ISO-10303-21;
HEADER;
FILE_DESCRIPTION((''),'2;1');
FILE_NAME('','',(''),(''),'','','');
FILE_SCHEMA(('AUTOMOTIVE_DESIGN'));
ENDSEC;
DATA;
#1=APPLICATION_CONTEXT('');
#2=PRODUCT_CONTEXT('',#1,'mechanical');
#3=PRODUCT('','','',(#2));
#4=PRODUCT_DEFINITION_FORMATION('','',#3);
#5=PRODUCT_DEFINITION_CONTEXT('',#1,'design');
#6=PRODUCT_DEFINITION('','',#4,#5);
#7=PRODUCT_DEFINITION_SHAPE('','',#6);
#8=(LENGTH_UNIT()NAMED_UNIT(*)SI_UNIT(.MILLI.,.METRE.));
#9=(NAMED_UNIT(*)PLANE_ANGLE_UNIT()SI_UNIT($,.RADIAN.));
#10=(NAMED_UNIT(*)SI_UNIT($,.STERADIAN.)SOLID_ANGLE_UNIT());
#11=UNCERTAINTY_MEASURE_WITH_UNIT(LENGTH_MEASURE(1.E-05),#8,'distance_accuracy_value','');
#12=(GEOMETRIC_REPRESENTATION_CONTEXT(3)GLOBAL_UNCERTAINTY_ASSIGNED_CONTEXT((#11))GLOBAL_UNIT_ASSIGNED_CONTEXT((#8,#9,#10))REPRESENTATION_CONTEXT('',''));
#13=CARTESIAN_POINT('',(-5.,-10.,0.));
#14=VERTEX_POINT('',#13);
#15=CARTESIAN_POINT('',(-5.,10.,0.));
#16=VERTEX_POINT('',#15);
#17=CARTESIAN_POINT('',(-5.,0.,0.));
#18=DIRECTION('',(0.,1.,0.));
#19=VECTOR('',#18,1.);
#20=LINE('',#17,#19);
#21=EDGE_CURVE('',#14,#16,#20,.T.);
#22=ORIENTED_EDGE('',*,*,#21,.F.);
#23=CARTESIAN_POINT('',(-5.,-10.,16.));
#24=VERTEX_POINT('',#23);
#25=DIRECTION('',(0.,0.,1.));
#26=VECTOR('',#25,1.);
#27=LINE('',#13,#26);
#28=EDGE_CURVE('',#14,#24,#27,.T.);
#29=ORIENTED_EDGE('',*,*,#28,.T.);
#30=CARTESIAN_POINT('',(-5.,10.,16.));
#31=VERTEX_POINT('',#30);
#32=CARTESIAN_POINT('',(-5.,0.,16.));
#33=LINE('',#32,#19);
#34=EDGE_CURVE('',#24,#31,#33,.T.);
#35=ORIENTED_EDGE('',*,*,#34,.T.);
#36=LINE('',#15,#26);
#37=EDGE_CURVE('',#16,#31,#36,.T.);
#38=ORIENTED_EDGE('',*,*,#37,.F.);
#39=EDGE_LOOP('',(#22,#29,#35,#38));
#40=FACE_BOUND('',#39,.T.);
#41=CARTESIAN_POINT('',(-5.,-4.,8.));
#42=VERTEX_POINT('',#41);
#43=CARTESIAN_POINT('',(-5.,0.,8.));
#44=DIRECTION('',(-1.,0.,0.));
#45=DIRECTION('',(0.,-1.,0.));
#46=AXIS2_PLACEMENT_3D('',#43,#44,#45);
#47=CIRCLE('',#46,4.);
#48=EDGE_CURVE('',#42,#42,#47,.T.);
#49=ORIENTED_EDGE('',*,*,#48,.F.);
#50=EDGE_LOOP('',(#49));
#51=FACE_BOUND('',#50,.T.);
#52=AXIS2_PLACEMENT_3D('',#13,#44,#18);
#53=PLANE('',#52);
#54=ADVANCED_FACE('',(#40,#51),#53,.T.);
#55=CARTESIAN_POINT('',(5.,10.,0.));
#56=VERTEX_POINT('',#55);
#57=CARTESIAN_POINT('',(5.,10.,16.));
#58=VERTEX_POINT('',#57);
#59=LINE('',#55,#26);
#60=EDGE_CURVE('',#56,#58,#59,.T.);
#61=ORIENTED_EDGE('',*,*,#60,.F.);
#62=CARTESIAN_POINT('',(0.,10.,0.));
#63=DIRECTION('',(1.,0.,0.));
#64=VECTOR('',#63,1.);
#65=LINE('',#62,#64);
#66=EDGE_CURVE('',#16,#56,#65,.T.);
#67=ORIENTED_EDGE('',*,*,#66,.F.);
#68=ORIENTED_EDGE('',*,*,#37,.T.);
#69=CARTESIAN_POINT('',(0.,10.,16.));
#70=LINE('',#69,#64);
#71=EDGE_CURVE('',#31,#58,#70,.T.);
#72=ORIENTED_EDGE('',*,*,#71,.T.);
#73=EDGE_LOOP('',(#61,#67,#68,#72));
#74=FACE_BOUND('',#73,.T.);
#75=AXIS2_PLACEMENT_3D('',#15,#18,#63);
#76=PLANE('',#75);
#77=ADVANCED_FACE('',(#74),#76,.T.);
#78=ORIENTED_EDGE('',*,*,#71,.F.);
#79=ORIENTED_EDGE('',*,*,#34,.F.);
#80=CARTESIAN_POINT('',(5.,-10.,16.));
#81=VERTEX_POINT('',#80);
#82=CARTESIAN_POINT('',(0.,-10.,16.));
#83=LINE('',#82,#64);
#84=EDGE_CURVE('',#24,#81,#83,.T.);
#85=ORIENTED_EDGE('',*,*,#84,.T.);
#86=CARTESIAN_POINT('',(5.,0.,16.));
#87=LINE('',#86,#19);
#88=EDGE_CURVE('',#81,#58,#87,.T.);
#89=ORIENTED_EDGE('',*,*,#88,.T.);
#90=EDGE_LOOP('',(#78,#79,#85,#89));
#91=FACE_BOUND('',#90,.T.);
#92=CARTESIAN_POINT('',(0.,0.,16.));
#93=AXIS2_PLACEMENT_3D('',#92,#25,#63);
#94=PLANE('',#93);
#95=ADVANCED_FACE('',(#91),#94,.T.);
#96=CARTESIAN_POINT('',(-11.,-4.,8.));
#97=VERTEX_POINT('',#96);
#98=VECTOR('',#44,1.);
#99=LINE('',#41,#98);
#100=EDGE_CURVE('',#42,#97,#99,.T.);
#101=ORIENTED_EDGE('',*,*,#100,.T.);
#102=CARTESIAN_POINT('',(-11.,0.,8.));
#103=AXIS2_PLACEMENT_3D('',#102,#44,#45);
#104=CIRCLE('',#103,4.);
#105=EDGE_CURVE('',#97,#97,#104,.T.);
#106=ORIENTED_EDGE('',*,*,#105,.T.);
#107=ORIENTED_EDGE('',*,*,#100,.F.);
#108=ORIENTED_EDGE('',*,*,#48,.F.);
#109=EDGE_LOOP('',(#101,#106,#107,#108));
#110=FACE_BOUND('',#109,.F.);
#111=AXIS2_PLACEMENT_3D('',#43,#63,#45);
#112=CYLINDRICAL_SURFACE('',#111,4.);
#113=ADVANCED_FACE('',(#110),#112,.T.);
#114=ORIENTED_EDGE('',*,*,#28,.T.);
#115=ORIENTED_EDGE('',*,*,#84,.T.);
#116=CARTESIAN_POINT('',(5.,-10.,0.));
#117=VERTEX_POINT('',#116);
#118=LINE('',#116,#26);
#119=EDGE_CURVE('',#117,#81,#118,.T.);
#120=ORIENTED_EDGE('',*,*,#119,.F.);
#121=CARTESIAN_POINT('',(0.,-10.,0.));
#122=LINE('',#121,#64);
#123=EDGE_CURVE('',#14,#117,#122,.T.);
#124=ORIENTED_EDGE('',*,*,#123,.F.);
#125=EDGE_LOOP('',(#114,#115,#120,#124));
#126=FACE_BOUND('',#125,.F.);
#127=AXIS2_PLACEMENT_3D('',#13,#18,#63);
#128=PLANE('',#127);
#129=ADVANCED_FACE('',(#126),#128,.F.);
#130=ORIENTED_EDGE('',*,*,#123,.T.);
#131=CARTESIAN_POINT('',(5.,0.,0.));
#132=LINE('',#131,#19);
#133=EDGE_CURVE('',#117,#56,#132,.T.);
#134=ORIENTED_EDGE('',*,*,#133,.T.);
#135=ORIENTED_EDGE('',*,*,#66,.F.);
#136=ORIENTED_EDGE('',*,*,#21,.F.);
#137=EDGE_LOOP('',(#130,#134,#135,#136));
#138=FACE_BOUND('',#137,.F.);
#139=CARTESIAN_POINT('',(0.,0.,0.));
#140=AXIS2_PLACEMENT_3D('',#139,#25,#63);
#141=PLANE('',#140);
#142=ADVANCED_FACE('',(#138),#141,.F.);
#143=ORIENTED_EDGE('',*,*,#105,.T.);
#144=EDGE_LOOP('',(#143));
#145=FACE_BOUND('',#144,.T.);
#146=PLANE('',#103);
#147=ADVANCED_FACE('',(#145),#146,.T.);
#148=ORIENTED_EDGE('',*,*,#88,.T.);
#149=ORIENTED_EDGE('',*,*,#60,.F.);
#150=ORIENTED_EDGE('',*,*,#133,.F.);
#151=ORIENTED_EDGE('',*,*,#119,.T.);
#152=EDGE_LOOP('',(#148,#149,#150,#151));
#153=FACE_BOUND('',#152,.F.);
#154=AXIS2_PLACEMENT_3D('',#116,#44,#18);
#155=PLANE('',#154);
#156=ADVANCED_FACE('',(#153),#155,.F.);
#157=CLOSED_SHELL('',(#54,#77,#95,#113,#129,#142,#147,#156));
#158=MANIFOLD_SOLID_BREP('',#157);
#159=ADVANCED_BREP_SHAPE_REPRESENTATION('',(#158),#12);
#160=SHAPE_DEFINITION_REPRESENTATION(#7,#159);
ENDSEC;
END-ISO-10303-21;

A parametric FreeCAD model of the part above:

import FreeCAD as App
import Part
import Sketcher
from FreeCAD import Vector

doc = App.newDocument("Part")
params = doc.addObject("Spreadsheet::Sheet", "Params")
for row, (alias, value) in enumerate([
    ("sketch1_width", "10 mm"),
    ("sketch1_height", "20 mm"),
    ("pad1_length", "16 mm"),
    ("sketch2_diameter", "8 mm"),
    ("pad2_length", "6 mm"),
], start=1):
    params.set(f"A{row}", alias)
    params.set(f"B{row}", "=" + value)
    params.setAlias(f"B{row}", alias)

body = doc.addObject("PartDesign::Body", "Body")

# Sketch on XY plane
sketch1 = body.newObject("Sketcher::SketchObject", "Sketch")
sketch1.AttachmentSupport = (doc.getObject("XY_Plane"), [""])
sketch1.MapMode = "FlatFace"
sketch1.addGeometry([
    Part.LineSegment(Vector(-5, 10, 0), Vector(-5, -10, 0)),
    Part.LineSegment(Vector(-5, -10, 0), Vector(5, -10, 0)),
    Part.LineSegment(Vector(5, -10, 0), Vector(5, 10, 0)),
    Part.LineSegment(Vector(5, 10, 0), Vector(-5, 10, 0)),
], False)
sketch1.addConstraint([
    Sketcher.Constraint("Coincident", 0, 2, 1, 1),
    Sketcher.Constraint("Coincident", 1, 2, 2, 1),
    Sketcher.Constraint("Coincident", 2, 2, 3, 1),
    Sketcher.Constraint("Coincident", 3, 2, 0, 1),
    Sketcher.Constraint("Vertical", 0),
    Sketcher.Constraint("Horizontal", 1),
    Sketcher.Constraint("Vertical", 2),
    Sketcher.Constraint("Horizontal", 3),
    Sketcher.Constraint("Symmetric", 0, 2, 2, 2, -1, 1),
    Sketcher.Constraint("DistanceX", 1, 1, 1, 2, 10.0),
    Sketcher.Constraint("DistanceY", 0, 2, 0, 1, 20.0),
])
sketch1.setExpression("Constraints[9]", "Params.sketch1_width")
sketch1.setExpression("Constraints[10]", "Params.sketch1_height")
pad1 = body.newObject("PartDesign::Pad", "Pad")
pad1.Profile = sketch1
pad1.setExpression("Length", "Params.pad1_length")

# Sketch on YZ plane
sketch2 = body.newObject("Sketcher::SketchObject", "Sketch001")
sketch2.AttachmentSupport = (doc.getObject("YZ_Plane"), [""])
sketch2.MapMode = "FlatFace"
sketch2.AttachmentOffset = App.Placement(Vector(0, 0, -5), App.Rotation())
sketch2.addGeometry(Part.Circle(Vector(0, 8, 0), Vector(0, 0, 1), 4), False)
sketch2.addConstraint([
    Sketcher.Constraint("PointOnObject", 0, 3, -2),
    Sketcher.Constraint("Diameter", 0, 8.0),
    Sketcher.Constraint("DistanceY", -1, 1, 0, 3, 8.0),
])
sketch2.setExpression("Constraints[1]", "Params.sketch2_diameter")
pad2 = body.newObject("PartDesign::Pad", "Pad001")
pad2.Profile = sketch2
pad2.setExpression("Length", "Params.pad2_length")
pad2.Reversed = True

doc.recompute()
